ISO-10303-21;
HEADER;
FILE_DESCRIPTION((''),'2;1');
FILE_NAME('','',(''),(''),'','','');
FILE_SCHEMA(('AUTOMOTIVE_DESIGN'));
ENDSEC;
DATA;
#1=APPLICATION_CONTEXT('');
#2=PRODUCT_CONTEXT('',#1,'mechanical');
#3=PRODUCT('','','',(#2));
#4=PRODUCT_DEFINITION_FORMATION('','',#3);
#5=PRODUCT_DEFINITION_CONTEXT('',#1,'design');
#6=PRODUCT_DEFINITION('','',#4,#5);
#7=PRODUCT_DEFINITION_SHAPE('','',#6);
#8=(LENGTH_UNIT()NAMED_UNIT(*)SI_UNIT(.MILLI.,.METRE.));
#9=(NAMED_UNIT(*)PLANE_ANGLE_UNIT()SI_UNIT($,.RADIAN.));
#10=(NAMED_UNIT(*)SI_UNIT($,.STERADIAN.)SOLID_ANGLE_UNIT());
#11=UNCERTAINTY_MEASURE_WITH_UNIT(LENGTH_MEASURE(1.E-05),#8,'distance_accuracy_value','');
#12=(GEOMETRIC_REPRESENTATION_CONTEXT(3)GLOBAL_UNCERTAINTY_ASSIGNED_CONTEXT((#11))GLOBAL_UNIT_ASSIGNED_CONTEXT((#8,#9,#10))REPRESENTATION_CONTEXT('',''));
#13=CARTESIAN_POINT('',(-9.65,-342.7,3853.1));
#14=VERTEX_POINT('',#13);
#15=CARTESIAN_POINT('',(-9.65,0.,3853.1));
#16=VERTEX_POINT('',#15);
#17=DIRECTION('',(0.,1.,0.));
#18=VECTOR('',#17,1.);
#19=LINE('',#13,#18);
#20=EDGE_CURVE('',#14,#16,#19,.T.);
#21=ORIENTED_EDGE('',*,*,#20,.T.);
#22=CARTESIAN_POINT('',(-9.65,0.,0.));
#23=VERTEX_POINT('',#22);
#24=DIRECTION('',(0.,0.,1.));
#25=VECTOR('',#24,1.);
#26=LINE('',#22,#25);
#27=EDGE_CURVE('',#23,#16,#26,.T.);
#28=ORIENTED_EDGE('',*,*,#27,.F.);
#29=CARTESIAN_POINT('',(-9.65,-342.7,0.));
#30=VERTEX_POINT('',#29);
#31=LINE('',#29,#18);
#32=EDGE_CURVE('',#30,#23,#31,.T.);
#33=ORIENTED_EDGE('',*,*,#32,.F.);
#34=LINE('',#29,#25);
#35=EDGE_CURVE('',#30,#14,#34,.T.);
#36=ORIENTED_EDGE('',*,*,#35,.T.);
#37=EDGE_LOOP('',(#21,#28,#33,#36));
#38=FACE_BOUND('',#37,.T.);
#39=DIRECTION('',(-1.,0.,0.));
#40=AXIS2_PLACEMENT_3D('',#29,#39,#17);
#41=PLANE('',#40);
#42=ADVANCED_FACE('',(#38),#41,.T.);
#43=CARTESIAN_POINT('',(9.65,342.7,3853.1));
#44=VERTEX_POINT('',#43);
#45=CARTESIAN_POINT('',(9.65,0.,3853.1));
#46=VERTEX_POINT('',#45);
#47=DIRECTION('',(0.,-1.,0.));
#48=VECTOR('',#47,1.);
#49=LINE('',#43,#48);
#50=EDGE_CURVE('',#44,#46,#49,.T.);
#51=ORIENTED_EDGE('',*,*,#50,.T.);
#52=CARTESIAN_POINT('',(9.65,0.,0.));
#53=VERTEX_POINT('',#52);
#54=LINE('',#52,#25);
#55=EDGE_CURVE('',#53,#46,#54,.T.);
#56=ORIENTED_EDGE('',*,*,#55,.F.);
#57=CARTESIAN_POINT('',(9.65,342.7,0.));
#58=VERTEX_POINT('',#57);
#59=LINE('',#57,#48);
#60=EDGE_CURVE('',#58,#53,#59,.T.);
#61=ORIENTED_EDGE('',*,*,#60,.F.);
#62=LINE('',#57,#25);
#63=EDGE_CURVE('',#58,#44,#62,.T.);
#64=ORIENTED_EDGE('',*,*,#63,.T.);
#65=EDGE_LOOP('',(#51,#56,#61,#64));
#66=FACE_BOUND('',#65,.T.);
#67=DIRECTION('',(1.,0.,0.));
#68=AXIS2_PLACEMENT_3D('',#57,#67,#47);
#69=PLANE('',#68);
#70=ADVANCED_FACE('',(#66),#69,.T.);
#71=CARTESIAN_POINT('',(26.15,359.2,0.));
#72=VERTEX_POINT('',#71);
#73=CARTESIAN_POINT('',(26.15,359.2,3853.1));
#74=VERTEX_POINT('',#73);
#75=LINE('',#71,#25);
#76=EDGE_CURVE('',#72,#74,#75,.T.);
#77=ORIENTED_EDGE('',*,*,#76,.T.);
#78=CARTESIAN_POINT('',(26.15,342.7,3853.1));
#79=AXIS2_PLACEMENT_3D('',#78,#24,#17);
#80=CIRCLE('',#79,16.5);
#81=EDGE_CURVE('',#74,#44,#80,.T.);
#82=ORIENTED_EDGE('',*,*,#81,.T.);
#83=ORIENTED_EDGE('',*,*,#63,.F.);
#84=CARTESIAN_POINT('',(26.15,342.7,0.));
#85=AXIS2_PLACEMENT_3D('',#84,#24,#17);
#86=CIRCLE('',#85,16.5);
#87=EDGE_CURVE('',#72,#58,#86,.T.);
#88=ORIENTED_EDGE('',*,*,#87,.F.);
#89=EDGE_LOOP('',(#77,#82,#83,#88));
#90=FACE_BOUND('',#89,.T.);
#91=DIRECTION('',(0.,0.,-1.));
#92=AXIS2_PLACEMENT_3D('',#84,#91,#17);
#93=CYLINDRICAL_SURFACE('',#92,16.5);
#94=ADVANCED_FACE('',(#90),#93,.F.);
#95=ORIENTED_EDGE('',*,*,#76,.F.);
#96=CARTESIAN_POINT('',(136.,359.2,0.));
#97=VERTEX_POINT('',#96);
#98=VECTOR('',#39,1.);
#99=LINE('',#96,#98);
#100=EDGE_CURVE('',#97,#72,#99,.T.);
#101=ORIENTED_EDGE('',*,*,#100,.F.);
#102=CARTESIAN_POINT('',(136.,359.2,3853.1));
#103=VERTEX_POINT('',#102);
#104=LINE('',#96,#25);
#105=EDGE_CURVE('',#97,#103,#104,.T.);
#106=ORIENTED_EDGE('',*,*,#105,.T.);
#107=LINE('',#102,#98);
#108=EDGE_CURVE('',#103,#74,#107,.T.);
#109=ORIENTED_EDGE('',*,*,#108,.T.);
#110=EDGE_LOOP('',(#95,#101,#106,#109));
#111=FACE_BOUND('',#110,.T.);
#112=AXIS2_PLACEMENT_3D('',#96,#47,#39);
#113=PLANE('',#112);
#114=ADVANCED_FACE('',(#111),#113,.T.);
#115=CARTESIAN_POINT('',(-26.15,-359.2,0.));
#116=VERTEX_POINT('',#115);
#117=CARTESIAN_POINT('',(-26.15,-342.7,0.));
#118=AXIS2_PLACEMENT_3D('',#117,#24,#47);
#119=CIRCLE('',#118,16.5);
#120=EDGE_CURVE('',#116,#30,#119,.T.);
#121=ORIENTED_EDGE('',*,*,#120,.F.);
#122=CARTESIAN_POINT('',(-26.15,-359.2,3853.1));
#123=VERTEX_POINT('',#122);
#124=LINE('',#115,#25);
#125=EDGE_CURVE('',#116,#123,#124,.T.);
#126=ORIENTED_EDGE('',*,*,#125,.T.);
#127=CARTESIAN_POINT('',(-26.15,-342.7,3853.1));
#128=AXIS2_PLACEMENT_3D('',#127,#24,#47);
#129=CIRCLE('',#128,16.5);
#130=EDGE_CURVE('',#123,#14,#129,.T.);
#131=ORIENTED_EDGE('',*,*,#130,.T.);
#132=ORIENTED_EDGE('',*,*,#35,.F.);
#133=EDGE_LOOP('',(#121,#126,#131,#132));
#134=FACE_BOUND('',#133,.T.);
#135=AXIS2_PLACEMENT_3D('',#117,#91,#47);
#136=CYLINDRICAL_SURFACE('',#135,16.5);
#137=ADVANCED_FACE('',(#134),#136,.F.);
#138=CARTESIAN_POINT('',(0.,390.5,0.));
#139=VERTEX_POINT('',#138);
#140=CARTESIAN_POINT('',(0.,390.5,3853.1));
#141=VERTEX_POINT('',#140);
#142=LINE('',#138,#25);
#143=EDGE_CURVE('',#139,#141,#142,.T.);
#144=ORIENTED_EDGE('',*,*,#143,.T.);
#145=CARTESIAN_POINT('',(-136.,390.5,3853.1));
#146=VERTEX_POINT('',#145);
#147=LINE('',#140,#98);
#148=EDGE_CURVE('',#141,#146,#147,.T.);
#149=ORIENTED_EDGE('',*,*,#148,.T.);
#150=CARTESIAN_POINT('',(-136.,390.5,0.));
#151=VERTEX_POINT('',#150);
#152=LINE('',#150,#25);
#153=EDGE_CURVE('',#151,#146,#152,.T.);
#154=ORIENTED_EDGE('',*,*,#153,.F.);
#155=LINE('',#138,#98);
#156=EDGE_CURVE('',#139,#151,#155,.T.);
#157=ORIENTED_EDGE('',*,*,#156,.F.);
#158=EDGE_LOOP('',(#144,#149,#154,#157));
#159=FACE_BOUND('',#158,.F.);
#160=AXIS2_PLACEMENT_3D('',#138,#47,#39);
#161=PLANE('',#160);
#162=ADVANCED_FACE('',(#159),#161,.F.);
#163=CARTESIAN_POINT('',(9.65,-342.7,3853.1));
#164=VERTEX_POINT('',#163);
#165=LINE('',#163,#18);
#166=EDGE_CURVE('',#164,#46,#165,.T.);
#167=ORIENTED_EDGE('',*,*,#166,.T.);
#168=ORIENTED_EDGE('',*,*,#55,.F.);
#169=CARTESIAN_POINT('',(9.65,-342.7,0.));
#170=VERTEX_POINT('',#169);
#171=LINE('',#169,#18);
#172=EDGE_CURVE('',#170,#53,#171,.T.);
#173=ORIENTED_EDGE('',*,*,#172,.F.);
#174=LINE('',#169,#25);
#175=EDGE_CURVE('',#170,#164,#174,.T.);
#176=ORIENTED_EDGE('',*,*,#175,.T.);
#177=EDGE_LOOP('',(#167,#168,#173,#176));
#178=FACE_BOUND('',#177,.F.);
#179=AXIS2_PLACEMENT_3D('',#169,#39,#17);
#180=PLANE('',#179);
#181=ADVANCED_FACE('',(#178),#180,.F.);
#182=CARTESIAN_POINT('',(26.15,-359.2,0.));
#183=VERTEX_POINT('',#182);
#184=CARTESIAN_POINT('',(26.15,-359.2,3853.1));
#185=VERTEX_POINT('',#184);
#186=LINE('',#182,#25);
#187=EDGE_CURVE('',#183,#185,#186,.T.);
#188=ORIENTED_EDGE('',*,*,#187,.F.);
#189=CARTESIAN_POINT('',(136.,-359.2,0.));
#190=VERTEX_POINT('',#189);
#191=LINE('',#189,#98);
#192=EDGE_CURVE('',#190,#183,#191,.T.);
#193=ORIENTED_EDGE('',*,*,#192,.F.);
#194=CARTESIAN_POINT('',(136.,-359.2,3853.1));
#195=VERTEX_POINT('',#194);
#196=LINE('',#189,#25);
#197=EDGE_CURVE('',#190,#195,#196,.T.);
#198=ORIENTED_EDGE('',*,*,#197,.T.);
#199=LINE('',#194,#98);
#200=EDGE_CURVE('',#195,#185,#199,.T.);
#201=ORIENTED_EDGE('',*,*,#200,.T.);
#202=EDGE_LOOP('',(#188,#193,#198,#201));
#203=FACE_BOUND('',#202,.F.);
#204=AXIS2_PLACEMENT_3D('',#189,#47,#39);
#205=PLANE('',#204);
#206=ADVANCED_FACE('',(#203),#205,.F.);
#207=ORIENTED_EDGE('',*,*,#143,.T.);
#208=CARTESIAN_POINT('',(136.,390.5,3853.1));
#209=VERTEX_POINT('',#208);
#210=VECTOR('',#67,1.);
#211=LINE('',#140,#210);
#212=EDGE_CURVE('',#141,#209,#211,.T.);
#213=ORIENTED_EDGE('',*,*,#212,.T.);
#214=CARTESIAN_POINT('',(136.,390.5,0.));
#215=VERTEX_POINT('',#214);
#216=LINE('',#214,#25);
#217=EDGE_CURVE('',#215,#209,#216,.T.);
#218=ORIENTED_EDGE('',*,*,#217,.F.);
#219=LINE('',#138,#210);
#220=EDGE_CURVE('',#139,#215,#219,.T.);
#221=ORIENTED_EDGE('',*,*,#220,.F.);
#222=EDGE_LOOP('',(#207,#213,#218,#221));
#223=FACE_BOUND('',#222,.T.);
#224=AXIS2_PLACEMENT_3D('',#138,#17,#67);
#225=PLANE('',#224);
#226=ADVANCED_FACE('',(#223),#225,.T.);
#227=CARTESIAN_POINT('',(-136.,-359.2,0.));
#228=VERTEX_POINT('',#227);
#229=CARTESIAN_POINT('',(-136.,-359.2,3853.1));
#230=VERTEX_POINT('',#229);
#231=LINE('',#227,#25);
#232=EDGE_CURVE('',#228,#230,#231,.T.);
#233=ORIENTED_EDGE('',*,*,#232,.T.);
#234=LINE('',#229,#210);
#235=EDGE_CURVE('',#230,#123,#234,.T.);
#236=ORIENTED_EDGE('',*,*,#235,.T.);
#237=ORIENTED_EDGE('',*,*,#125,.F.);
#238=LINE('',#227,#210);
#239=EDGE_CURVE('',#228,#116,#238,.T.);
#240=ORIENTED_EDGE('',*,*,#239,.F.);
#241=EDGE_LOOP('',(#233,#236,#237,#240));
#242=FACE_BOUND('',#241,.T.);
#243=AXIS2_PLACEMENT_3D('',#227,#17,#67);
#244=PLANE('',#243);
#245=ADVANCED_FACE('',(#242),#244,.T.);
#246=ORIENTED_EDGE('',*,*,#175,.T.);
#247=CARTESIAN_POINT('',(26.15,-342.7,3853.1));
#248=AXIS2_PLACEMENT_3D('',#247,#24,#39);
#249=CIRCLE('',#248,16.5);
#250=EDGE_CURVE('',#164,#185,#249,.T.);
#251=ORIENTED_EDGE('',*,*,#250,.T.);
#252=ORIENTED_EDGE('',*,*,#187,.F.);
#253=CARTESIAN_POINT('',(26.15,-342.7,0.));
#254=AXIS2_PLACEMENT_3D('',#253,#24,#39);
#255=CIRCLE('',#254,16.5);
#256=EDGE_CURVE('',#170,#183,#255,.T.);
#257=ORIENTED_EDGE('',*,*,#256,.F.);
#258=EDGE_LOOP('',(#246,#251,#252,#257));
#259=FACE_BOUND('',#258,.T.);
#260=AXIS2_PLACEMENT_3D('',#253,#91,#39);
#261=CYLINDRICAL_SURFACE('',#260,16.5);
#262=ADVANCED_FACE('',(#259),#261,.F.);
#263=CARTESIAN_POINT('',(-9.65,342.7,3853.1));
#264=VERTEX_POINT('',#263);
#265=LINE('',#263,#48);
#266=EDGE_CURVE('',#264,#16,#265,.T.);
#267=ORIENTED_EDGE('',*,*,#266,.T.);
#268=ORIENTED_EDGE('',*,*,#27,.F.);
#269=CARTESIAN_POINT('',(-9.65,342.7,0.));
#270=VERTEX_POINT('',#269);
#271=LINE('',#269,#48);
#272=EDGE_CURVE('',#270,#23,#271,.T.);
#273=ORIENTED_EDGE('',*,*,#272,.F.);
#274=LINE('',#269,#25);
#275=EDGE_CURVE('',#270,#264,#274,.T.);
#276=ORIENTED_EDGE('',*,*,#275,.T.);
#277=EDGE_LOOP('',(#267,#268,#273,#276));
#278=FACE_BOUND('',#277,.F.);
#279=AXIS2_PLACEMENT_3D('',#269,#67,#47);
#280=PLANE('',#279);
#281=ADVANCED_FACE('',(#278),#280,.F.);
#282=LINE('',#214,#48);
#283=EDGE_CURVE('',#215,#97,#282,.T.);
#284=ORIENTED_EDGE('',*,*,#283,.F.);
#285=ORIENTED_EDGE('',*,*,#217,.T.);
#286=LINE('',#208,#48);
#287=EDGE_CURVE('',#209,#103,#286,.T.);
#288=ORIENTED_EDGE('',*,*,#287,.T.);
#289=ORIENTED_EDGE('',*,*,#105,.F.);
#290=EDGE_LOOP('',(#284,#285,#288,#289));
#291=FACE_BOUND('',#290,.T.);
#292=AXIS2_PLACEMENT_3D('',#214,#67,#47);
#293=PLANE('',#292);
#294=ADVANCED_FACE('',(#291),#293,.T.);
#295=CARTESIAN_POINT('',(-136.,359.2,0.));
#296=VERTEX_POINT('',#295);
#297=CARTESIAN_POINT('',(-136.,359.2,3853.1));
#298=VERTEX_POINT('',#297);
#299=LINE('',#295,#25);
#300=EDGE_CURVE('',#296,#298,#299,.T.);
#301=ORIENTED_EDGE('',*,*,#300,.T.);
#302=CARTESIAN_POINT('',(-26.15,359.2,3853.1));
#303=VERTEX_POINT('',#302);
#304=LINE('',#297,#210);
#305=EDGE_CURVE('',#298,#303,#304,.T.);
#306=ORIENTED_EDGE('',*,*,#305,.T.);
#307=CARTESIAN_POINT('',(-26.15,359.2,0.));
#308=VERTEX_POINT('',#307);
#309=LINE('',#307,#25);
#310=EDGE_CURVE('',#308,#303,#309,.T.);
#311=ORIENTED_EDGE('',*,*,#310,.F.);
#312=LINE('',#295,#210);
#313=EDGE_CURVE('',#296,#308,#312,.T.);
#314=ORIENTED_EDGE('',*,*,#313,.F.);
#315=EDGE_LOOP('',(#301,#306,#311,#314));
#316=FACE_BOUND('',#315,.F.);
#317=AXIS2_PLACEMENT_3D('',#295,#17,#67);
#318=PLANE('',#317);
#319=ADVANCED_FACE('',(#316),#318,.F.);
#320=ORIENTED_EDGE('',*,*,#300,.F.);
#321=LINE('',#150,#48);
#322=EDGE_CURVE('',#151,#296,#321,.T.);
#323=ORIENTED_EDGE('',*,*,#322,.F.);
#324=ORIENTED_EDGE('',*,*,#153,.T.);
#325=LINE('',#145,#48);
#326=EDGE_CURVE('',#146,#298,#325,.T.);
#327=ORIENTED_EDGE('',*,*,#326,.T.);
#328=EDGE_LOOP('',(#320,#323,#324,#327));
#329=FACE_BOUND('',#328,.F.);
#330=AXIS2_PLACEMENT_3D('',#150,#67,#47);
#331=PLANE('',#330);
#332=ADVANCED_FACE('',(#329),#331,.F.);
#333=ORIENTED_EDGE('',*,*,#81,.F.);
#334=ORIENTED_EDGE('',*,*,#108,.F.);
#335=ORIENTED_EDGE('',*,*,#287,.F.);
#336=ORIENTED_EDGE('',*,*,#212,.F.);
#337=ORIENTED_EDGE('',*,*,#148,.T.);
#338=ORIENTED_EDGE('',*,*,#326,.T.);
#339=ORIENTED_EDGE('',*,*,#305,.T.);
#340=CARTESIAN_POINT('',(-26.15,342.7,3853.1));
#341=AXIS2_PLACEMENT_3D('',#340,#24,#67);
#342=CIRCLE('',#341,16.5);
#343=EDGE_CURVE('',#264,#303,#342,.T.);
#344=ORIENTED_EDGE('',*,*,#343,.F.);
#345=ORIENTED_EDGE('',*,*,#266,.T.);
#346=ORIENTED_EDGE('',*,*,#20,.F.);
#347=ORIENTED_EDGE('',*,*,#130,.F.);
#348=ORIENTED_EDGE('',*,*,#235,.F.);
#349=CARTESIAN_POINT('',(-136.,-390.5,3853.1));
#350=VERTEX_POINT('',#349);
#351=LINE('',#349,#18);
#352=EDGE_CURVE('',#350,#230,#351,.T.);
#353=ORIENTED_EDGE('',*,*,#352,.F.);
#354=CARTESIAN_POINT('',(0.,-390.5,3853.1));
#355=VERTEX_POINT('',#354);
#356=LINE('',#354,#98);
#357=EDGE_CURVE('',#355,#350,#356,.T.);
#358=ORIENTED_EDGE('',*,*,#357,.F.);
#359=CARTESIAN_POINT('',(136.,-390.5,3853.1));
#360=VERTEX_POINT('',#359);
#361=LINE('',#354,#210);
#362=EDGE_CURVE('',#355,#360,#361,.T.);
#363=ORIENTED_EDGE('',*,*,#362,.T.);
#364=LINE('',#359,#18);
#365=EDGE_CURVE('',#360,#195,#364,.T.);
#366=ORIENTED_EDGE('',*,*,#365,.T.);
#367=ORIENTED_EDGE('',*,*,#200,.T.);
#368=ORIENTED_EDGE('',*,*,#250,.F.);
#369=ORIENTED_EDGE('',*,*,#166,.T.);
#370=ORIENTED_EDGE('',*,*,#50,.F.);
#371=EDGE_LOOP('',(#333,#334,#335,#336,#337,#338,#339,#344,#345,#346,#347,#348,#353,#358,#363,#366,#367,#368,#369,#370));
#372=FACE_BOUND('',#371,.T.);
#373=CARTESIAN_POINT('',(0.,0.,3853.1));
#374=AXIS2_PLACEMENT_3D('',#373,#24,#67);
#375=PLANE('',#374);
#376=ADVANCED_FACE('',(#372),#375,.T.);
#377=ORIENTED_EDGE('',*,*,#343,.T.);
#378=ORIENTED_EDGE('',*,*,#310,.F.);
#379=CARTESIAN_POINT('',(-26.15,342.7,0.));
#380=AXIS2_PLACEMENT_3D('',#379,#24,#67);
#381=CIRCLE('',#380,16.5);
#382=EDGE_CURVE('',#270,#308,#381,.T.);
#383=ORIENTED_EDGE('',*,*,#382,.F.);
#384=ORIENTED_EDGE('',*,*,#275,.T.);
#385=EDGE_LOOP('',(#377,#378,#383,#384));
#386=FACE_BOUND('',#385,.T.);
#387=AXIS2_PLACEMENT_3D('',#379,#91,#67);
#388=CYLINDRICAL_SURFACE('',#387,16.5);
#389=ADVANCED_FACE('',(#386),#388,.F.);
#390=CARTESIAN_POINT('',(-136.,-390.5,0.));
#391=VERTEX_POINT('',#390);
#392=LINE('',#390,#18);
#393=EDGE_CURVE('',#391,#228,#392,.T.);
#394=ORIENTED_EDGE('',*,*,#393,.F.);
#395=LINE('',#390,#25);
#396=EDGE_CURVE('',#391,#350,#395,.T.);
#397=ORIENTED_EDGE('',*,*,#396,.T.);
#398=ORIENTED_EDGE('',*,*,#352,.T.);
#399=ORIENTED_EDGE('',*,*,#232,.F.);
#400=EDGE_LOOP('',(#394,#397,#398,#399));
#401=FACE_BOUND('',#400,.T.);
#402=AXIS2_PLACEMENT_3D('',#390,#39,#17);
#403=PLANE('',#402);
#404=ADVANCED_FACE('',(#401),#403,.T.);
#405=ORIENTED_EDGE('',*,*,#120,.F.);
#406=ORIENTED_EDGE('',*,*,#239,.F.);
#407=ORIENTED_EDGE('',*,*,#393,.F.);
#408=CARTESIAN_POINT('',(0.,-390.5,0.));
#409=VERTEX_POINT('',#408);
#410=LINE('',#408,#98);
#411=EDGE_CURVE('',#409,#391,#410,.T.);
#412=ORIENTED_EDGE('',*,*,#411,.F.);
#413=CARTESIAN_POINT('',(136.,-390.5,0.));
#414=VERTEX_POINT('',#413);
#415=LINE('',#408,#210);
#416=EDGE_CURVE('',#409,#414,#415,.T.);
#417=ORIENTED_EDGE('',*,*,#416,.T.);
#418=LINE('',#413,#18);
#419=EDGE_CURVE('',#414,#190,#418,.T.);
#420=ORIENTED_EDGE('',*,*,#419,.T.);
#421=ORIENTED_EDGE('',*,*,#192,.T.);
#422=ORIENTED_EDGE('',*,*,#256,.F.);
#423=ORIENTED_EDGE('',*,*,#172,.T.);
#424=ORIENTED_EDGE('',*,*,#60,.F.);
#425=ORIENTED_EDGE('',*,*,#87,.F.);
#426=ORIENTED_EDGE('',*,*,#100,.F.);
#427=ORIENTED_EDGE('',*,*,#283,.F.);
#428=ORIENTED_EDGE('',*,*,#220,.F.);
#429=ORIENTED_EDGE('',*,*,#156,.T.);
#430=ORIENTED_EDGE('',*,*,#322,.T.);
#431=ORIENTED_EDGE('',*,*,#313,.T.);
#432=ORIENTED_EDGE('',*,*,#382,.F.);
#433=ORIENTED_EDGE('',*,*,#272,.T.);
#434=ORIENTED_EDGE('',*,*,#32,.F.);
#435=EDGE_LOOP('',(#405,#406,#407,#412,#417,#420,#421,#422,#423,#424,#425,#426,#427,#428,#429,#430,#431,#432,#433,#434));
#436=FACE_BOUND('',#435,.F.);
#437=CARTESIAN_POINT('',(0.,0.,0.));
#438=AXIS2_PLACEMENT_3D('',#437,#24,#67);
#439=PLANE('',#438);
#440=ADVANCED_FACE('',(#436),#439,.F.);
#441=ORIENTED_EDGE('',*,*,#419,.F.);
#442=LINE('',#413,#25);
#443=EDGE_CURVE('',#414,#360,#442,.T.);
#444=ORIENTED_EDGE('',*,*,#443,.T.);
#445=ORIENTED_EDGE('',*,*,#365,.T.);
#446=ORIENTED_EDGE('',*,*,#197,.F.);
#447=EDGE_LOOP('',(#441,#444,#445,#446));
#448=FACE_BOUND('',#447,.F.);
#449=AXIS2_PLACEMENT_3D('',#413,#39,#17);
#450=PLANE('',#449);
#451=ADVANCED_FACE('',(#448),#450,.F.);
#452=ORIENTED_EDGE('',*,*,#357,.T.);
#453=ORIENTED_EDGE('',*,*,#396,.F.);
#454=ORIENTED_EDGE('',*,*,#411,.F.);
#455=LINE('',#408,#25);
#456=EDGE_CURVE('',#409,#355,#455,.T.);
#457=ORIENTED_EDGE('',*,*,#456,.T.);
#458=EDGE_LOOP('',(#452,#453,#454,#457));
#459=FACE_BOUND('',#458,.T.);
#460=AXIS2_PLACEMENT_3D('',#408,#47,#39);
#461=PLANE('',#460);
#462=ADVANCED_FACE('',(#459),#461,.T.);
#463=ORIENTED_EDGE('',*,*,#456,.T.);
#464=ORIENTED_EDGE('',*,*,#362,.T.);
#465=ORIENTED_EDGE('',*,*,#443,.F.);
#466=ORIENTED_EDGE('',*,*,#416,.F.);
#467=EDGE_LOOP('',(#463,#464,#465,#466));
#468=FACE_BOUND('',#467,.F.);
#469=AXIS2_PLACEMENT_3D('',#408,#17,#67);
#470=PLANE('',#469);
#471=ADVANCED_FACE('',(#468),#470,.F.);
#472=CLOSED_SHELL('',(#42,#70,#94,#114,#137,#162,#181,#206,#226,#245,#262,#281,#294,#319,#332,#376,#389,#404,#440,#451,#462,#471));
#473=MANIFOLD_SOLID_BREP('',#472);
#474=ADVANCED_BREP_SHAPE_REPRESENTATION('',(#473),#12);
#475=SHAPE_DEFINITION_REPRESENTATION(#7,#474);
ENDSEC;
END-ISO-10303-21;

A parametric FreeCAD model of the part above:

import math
import FreeCAD as App
import Part
import Sketcher

doc = App.newDocument("Part")
body = doc.addObject("PartDesign::Body", "Body")

# Sketch on XY plane
sketch1 = body.newObject("Sketcher::SketchObject", "Sketch")
sketch1.AttachmentSupport = (doc.getObject("XY_Plane"), [""])
sketch1.MapMode = "FlatFace"
sketch1.addGeometry([
    Part.LineSegment(App.Vector(-136, -359.2, 0), App.Vector(-136, -390.5, 0)),  # 0
    Part.LineSegment(App.Vector(-136, -390.5, 0), App.Vector(136, -390.5, 0)),  # 1
    Part.LineSegment(App.Vector(136, -390.5, 0), App.Vector(136, -359.2, 0)),  # 2
    Part.LineSegment(App.Vector(136, -359.2, 0), App.Vector(26.15, -359.2, 0)),  # 3
    Part.ArcOfCircle(Part.Circle(App.Vector(26.15, -342.7, 0), App.Vector(0, 0, 1), 16.5), math.radians(180), math.radians(270)),  # 4
    Part.LineSegment(App.Vector(9.65, -342.7, 0), App.Vector(9.65, 342.7, 0)),  # 5
    Part.ArcOfCircle(Part.Circle(App.Vector(26.15, 342.7, 0), App.Vector(0, 0, 1), 16.5), math.radians(90), math.radians(180)),  # 6
    Part.LineSegment(App.Vector(26.15, 359.2, 0), App.Vector(136, 359.2, 0)),  # 7
    Part.LineSegment(App.Vector(136, 359.2, 0), App.Vector(136, 390.5, 0)),  # 8
    Part.LineSegment(App.Vector(136, 390.5, 0), App.Vector(-136, 390.5, 0)),  # 9
    Part.LineSegment(App.Vector(-136, 390.5, 0), App.Vector(-136, 359.2, 0)),  # 10
    Part.LineSegment(App.Vector(-136, 359.2, 0), App.Vector(-26.15, 359.2, 0)),  # 11
    Part.ArcOfCircle(Part.Circle(App.Vector(-26.15, 342.7, 0), App.Vector(0, 0, 1), 16.5), math.radians(0), math.radians(90)),  # 12
    Part.LineSegment(App.Vector(-9.65, 342.7, 0), App.Vector(-9.65, -342.7, 0)),  # 13
    Part.ArcOfCircle(Part.Circle(App.Vector(-26.15, -342.7, 0), App.Vector(0, 0, 1), 16.5), math.radians(-90), math.radians(0)),  # 14
    Part.LineSegment(App.Vector(-26.15, -359.2, 0), App.Vector(-136, -359.2, 0)),  # 15
], False)
sketch1.addConstraint([
    Sketcher.Constraint("Coincident", 0, 2, 1, 1),
    Sketcher.Constraint("Coincident", 1, 2, 2, 1),
    Sketcher.Constraint("Coincident", 2, 2, 3, 1),
    Sketcher.Constraint("Tangent", 3, 2, 4, 2),
    Sketcher.Constraint("Tangent", 4, 1, 5, 1),
    Sketcher.Constraint("Tangent", 5, 2, 6, 2),
    Sketcher.Constraint("Tangent", 6, 1, 7, 1),
    Sketcher.Constraint("Coincident", 7, 2, 8, 1),
    Sketcher.Constraint("Coincident", 8, 2, 9, 1),
    Sketcher.Constraint("Coincident", 9, 2, 10, 1),
    Sketcher.Constraint("Coincident", 10, 2, 11, 1),
    Sketcher.Constraint("Tangent", 11, 2, 12, 2),
    Sketcher.Constraint("Tangent", 12, 1, 13, 1),
    Sketcher.Constraint("Tangent", 13, 2, 14, 2),
    Sketcher.Constraint("Tangent", 14, 1, 15, 1),
    Sketcher.Constraint("Coincident", 15, 2, 0, 1),
    Sketcher.Constraint("Vertical", 0),
    Sketcher.Constraint("Horizontal", 1),
    Sketcher.Constraint("Vertical", 2),
    Sketcher.Constraint("Horizontal", 3),
    Sketcher.Constraint("Vertical", 5),
    Sketcher.Constraint("Horizontal", 7),
    Sketcher.Constraint("Vertical", 8),
    Sketcher.Constraint("Horizontal", 9),
    Sketcher.Constraint("Vertical", 10),
    Sketcher.Constraint("Horizontal", 11),
    Sketcher.Constraint("Vertical", 13),
    Sketcher.Constraint("Horizontal", 15),
    Sketcher.Constraint("Equal", 4, 6),
    Sketcher.Constraint("Equal", 6, 12),
    Sketcher.Constraint("Equal", 12, 14),
    Sketcher.Constraint("Symmetric", 4, 3, 12, 3, -1, 1),
    Sketcher.Constraint("Symmetric", 0, 2, 8, 2, -1, 1),
    Sketcher.Constraint("Symmetric", 7, 2, 10, 2, -2),
    Sketcher.Constraint("Symmetric", 2, 2, 15, 2, -2),
    Sketcher.Constraint("Radius", 4, 16.5),
    Sketcher.Constraint("DistanceY", 0, 2, 0, 1, 31.3),
    Sketcher.Constraint("DistanceX", 0, 2, -1, 1, 136.0),
    Sketcher.Constraint("DistanceY", 0, 2, -1, 1, 390.5),
    Sketcher.Constraint("DistanceX", -1, 1, 4, 1, 9.65),
])
pad1 = body.newObject("PartDesign::Pad", "Pad")
pad1.Profile = sketch1
pad1.Length = 3853.1

doc.recompute()
